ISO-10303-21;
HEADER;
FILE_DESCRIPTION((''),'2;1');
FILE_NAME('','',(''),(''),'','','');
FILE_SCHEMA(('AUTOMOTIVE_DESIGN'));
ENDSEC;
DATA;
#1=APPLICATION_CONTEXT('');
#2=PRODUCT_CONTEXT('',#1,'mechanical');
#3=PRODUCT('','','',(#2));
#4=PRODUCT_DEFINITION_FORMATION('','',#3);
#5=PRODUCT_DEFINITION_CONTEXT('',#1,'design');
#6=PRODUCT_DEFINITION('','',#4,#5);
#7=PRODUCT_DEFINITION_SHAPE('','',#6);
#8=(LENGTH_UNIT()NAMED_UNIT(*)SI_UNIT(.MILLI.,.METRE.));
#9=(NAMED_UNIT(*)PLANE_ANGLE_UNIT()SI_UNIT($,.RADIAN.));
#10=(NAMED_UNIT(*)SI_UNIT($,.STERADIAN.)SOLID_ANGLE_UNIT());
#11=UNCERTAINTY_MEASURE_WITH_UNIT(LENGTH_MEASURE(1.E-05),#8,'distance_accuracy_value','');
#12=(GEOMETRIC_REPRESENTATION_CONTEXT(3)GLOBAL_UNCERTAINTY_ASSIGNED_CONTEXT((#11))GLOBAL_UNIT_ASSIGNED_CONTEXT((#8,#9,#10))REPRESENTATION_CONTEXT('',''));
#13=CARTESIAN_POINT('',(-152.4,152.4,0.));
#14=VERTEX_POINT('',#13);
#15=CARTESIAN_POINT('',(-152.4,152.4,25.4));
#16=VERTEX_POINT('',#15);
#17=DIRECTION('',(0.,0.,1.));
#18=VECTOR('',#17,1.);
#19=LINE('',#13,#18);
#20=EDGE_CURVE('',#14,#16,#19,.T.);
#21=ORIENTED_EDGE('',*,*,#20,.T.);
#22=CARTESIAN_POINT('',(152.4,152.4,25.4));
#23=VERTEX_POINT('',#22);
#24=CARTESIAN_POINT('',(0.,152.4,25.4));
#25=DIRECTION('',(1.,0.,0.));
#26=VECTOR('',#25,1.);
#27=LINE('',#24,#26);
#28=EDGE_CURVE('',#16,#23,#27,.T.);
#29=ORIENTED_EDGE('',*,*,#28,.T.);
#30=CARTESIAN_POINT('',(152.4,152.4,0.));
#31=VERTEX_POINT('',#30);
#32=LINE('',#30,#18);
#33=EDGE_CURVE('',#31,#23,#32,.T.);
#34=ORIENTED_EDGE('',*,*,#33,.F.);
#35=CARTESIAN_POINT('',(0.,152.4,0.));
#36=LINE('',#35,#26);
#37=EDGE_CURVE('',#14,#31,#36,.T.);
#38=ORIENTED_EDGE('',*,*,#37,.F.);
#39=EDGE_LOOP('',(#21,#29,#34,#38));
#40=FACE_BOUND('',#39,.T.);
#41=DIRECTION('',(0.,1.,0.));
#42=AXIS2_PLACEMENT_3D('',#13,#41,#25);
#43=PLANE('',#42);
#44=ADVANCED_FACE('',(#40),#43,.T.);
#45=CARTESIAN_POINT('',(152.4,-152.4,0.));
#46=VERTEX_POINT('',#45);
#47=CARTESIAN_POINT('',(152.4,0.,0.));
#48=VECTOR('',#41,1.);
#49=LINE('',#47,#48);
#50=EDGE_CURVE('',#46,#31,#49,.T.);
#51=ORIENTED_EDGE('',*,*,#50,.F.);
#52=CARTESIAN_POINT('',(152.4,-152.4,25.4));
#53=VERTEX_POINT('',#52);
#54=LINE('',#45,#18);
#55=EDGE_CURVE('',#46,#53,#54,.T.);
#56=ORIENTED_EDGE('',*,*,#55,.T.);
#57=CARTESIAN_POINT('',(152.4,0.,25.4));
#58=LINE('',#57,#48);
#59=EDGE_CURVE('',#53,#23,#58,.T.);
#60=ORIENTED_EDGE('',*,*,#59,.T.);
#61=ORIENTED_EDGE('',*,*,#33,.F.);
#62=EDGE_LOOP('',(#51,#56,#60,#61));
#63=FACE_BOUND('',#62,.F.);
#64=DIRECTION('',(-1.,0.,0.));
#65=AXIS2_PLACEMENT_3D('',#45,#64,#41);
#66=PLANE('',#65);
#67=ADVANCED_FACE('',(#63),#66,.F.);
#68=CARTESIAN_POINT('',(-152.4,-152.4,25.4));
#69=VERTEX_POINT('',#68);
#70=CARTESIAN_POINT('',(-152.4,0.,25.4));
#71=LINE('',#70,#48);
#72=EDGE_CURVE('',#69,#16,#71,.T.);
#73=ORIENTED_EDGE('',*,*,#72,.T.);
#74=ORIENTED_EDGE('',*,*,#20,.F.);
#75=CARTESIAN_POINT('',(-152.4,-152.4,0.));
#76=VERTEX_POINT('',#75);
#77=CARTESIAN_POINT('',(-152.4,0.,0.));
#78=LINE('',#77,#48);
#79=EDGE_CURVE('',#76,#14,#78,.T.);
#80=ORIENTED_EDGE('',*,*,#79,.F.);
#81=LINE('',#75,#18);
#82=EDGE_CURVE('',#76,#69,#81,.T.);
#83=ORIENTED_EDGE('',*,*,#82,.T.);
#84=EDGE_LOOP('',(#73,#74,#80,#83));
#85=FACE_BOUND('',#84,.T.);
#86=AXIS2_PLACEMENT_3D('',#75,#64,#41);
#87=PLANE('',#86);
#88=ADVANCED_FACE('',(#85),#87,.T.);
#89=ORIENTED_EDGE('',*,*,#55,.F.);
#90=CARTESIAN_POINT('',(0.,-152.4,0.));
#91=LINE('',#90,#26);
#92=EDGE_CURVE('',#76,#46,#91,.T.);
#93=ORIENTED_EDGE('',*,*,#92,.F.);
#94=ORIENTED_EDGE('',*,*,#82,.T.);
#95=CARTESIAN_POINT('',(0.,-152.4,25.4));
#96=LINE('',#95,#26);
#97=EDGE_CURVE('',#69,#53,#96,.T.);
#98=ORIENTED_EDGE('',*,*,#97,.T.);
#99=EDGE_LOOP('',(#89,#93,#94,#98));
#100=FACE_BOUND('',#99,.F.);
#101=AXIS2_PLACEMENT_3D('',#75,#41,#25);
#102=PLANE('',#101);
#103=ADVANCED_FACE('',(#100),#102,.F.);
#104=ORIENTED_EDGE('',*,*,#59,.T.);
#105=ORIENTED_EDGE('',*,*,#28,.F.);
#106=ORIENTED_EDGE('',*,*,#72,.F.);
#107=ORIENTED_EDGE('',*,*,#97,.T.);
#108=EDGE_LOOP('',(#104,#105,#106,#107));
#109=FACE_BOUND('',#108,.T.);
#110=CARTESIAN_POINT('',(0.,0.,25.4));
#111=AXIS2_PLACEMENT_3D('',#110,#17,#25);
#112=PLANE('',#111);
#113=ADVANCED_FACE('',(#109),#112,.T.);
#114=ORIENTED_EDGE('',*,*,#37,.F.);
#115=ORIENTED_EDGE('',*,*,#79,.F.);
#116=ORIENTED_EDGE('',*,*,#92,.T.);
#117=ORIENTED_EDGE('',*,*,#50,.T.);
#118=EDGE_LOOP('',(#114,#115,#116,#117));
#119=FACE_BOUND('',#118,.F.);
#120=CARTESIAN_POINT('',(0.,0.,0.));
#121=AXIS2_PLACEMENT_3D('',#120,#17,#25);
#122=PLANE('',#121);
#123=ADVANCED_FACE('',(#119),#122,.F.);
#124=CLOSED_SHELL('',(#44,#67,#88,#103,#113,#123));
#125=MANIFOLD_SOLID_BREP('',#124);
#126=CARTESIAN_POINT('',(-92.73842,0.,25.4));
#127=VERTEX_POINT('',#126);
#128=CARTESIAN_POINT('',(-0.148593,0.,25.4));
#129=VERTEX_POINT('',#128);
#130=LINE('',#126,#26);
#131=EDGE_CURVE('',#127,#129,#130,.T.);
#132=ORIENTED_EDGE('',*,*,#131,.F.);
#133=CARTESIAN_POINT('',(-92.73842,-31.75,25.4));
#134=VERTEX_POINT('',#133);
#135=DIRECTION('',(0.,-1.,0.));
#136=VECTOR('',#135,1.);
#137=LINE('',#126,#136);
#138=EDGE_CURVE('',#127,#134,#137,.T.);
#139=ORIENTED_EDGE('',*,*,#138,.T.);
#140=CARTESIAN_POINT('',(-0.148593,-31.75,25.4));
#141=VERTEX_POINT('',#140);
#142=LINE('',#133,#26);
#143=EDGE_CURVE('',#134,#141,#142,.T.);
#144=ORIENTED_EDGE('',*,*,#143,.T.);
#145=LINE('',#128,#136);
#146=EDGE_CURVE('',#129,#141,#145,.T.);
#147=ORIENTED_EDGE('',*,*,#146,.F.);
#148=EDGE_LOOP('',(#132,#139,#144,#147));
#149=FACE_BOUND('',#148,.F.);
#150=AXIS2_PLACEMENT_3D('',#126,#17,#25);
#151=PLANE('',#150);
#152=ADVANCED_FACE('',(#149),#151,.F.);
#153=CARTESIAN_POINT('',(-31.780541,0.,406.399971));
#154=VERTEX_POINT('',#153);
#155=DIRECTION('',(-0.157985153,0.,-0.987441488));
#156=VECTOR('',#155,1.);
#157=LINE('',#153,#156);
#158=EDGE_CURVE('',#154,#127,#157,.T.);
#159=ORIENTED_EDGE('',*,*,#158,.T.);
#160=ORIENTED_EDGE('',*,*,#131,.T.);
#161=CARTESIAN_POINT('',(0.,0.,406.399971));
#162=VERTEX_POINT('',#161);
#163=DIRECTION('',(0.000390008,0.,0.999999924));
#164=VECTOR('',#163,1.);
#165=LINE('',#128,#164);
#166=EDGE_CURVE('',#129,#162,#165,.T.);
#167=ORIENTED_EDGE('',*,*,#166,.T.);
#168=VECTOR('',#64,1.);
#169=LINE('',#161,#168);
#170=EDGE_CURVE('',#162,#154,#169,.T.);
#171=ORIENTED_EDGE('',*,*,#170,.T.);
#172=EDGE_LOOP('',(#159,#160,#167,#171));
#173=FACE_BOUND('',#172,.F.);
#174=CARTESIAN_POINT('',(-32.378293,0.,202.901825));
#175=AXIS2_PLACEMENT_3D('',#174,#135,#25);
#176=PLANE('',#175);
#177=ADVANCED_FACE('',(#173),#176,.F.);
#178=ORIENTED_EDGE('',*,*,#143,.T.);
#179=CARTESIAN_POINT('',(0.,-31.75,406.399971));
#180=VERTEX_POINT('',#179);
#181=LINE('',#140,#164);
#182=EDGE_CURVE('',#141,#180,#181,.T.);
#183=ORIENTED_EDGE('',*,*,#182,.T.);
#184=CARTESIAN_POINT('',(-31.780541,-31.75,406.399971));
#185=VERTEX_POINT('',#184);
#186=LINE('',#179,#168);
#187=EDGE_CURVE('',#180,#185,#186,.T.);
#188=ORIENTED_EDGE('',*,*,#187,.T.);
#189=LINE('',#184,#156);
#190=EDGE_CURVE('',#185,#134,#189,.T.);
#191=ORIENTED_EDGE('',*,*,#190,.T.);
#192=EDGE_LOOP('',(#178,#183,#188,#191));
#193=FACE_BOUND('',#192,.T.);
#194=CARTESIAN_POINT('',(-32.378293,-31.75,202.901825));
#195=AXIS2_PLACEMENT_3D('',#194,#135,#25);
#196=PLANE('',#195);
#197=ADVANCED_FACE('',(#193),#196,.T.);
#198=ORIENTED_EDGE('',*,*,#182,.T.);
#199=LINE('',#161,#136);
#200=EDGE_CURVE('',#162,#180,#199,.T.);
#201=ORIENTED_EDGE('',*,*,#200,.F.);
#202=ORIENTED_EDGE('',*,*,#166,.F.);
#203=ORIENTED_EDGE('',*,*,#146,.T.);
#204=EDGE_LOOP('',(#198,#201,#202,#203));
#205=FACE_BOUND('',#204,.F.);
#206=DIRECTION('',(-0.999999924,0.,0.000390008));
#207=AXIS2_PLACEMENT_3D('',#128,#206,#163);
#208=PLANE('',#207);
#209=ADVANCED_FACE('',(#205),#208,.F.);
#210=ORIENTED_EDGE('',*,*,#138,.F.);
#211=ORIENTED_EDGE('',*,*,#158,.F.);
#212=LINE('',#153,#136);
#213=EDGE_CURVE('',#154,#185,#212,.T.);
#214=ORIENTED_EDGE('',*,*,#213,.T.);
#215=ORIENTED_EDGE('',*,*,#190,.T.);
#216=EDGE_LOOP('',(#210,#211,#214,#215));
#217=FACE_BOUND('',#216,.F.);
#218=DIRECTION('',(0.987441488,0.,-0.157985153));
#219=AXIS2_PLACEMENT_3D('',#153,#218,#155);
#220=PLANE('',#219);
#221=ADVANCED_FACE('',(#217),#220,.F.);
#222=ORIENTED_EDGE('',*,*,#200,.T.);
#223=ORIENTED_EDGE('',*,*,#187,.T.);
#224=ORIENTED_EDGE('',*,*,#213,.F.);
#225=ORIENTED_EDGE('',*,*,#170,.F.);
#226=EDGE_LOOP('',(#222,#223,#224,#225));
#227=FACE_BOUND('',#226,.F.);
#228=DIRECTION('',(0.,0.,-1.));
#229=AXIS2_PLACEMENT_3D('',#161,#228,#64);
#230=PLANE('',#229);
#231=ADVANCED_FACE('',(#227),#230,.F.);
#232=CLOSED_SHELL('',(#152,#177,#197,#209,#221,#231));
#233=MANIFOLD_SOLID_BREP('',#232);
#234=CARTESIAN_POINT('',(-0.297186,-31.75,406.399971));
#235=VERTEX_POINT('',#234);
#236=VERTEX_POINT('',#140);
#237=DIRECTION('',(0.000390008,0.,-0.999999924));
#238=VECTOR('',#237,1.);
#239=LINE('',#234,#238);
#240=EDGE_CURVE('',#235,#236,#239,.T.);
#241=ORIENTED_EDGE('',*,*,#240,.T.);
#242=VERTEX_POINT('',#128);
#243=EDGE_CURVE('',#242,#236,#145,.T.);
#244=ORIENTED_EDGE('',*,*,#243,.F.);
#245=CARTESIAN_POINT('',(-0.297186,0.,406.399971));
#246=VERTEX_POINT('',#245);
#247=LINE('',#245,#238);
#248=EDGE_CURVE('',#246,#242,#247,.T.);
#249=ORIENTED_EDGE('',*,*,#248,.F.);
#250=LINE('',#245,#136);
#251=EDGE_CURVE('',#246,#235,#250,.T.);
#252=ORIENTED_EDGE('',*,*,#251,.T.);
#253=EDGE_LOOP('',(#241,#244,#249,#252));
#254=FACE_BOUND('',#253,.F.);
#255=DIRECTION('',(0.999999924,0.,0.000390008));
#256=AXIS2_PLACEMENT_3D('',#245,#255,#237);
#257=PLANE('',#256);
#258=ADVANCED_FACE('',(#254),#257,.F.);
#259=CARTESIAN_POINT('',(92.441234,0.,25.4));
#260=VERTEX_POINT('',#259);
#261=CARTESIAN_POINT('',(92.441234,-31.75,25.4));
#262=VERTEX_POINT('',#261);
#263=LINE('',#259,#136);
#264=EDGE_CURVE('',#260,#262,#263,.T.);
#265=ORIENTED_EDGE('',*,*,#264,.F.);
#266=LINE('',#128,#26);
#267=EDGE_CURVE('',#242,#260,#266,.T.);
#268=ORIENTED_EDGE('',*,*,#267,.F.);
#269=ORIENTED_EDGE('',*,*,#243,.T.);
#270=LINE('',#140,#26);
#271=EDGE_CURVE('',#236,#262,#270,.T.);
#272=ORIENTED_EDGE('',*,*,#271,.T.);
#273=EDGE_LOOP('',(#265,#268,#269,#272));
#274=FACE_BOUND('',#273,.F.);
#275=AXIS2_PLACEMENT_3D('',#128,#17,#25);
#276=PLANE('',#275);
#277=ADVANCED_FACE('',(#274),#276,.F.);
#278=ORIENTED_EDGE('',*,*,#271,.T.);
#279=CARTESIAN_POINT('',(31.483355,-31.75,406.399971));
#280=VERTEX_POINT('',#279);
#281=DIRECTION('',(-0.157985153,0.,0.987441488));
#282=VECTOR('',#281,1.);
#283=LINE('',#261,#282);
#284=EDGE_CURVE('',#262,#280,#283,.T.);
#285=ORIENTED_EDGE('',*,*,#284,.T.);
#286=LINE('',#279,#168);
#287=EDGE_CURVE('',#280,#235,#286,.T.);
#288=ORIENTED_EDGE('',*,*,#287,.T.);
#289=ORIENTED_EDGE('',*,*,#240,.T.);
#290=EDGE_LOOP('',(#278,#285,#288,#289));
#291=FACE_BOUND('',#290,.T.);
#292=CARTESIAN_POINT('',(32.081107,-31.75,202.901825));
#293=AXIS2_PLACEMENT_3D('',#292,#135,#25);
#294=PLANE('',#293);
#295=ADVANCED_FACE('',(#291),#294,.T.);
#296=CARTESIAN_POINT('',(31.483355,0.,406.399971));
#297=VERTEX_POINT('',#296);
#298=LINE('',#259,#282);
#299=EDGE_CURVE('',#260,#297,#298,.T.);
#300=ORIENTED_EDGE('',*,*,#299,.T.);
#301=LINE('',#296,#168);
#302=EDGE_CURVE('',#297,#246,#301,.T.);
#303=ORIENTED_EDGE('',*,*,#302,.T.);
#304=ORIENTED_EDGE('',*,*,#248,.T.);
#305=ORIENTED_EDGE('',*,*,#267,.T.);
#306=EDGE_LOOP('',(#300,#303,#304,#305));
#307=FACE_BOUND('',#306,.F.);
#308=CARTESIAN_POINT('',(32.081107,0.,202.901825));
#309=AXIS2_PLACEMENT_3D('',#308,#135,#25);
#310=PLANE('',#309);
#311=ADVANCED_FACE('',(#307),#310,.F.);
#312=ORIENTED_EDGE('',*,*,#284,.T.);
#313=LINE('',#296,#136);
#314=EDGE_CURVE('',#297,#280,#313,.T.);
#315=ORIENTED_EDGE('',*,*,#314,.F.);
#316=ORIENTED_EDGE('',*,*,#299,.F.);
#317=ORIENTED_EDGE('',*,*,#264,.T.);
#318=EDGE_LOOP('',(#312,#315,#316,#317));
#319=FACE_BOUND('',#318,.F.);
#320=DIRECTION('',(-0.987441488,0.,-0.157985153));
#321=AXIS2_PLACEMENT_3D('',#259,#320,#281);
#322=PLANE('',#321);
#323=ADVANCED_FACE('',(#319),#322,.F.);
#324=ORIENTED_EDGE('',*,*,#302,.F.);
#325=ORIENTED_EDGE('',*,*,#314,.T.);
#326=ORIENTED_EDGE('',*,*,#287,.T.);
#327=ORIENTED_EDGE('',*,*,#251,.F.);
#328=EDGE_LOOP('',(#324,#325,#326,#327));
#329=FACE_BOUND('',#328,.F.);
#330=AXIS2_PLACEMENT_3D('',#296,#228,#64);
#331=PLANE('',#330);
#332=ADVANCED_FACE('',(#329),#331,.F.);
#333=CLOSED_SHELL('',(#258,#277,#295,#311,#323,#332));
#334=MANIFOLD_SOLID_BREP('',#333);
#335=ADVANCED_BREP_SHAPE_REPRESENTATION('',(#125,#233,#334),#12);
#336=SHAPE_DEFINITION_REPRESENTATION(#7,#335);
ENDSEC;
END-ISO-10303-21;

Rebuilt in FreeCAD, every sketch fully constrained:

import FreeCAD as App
import Part
import Sketcher

V = App.Vector
Q = App.Units.Quantity


def add_polygon(sketch, points):
    """Adds a closed chain of lines whose ends are joined by coincident constraints."""
    first, n = sketch.GeometryCount, len(points)
    for a, b in zip(points, points[1:] + points[:1]):
        sketch.addGeometry(Part.LineSegment(App.Vector(*a, 0), App.Vector(*b, 0)), False)
    for i in range(n):
        sketch.addConstraint(Sketcher.Constraint("Coincident", first + i, 2, first + (i + 1) % n, 1))

doc = App.newDocument("Part")
body = doc.addObject("PartDesign::Body", "Body")

# Sketch on XY plane
sketch1 = body.newObject("Sketcher::SketchObject", "Sketch")
sketch1.AttachmentSupport = (doc.getObject("XY_Plane"), [""])
sketch1.MapMode = "FlatFace"
add_polygon(sketch1, [(-152.4, 152.4), (-152.4, -152.4), (152.4, -152.4), (152.4, 152.4)])  # lines 0-3
sketch1.addConstraint(Sketcher.Constraint("Vertical", 0))
sketch1.addConstraint(Sketcher.Constraint("Horizontal", 1))
sketch1.addConstraint(Sketcher.Constraint("Vertical", 2))
sketch1.addConstraint(Sketcher.Constraint("Horizontal", 3))
sketch1.addConstraint(Sketcher.Constraint("Symmetric", 0, 2, 2, 2, -1, 1))
sketch1.addConstraint(Sketcher.Constraint("Equal", 3, 0))
sketch1.addConstraint(Sketcher.Constraint("DistanceX", 1, 1, 1, 2, Q("12 in")))
pad1 = body.newObject("PartDesign::Pad", "Pad")
pad1.Profile = sketch1
pad1.Length = Q("1 in")
body2 = doc.addObject("PartDesign::Body", "Body001")

# Sketch on XZ plane
sketch2 = body2.newObject("Sketcher::SketchObject", "Sketch001")
sketch2.AttachmentSupport = (doc.getObject("XZ_Plane001"), [""])
sketch2.MapMode = "FlatFace"
add_polygon(sketch2, [(-0.148593, 25.4), (92.441234, 25.4), (31.483355, 406.399971), (-0.297186, 406.399971)])  # lines 0-3
sketch2.addConstraint(Sketcher.Constraint("Horizontal", 0))
sketch2.addConstraint(Sketcher.Constraint("Horizontal", 2))
sketch2.addConstraint(Sketcher.Constraint("Distance", 3, Q("15 in")))
sketch2.addConstraint(Sketcher.Constraint("DistanceY", -1, 1, 0, 2, Q("1 in")))
sketch2.addConstraint(Sketcher.Constraint("DistanceX", 2, 2, 2, 1, Q("31.780541 mm")))
sketch2.addConstraint(Sketcher.Constraint("DistanceX", 0, 1, 0, 2, Q("92.589827 mm")))
sketch2.addConstraint(Sketcher.Constraint("DistanceX", 1, 2, 0, 2, Q("60.957879 mm")))
sketch2.addConstraint(Sketcher.Constraint("DistanceX", -1, 1, 0, 2, Q("92.441234 mm")))
pad2 = body2.newObject("PartDesign::Pad", "Pad001")
pad2.Profile = sketch2
pad2.Length = Q("1.25 in")
body3 = doc.addObject("PartDesign::Body", "Body002")

# Sketch on XZ plane
sketch3 = body3.newObject("Sketcher::SketchObject", "Sketch002")
sketch3.AttachmentSupport = (doc.getObject("XZ_Plane002"), [""])
sketch3.MapMode = "FlatFace"
add_polygon(sketch3, [(-31.780541, 406.399971), (-92.73842, 25.4), (-0.148593, 25.4), (0, 406.399971)])  # lines 0-3
sketch3.addConstraint(Sketcher.Constraint("Horizontal", 1))
sketch3.addConstraint(Sketcher.Constraint("Horizontal", 3))
sketch3.addConstraint(Sketcher.Constraint("PointOnObject", 2, 2, -2))
sketch3.addConstraint(Sketcher.Constraint("Distance", 2, Q("15 in")))
sketch3.addConstraint(Sketcher.Constraint("DistanceY", -1, 1, 0, 2, Q("1 in")))
sketch3.addConstraint(Sketcher.Constraint("DistanceX", 3, 2, 3, 1, Q("31.780541 mm")))
sketch3.addConstraint(Sketcher.Constraint("DistanceX", 1, 1, 1, 2, Q("92.589827 mm")))
sketch3.addConstraint(Sketcher.Constraint("DistanceX", 0, 2, -1, 1, Q("92.73842 mm")))
pad3 = body3.newObject("PartDesign::Pad", "Pad002")
pad3.Profile = sketch3
pad3.Length = Q("1.25 in")

doc.recompute()
